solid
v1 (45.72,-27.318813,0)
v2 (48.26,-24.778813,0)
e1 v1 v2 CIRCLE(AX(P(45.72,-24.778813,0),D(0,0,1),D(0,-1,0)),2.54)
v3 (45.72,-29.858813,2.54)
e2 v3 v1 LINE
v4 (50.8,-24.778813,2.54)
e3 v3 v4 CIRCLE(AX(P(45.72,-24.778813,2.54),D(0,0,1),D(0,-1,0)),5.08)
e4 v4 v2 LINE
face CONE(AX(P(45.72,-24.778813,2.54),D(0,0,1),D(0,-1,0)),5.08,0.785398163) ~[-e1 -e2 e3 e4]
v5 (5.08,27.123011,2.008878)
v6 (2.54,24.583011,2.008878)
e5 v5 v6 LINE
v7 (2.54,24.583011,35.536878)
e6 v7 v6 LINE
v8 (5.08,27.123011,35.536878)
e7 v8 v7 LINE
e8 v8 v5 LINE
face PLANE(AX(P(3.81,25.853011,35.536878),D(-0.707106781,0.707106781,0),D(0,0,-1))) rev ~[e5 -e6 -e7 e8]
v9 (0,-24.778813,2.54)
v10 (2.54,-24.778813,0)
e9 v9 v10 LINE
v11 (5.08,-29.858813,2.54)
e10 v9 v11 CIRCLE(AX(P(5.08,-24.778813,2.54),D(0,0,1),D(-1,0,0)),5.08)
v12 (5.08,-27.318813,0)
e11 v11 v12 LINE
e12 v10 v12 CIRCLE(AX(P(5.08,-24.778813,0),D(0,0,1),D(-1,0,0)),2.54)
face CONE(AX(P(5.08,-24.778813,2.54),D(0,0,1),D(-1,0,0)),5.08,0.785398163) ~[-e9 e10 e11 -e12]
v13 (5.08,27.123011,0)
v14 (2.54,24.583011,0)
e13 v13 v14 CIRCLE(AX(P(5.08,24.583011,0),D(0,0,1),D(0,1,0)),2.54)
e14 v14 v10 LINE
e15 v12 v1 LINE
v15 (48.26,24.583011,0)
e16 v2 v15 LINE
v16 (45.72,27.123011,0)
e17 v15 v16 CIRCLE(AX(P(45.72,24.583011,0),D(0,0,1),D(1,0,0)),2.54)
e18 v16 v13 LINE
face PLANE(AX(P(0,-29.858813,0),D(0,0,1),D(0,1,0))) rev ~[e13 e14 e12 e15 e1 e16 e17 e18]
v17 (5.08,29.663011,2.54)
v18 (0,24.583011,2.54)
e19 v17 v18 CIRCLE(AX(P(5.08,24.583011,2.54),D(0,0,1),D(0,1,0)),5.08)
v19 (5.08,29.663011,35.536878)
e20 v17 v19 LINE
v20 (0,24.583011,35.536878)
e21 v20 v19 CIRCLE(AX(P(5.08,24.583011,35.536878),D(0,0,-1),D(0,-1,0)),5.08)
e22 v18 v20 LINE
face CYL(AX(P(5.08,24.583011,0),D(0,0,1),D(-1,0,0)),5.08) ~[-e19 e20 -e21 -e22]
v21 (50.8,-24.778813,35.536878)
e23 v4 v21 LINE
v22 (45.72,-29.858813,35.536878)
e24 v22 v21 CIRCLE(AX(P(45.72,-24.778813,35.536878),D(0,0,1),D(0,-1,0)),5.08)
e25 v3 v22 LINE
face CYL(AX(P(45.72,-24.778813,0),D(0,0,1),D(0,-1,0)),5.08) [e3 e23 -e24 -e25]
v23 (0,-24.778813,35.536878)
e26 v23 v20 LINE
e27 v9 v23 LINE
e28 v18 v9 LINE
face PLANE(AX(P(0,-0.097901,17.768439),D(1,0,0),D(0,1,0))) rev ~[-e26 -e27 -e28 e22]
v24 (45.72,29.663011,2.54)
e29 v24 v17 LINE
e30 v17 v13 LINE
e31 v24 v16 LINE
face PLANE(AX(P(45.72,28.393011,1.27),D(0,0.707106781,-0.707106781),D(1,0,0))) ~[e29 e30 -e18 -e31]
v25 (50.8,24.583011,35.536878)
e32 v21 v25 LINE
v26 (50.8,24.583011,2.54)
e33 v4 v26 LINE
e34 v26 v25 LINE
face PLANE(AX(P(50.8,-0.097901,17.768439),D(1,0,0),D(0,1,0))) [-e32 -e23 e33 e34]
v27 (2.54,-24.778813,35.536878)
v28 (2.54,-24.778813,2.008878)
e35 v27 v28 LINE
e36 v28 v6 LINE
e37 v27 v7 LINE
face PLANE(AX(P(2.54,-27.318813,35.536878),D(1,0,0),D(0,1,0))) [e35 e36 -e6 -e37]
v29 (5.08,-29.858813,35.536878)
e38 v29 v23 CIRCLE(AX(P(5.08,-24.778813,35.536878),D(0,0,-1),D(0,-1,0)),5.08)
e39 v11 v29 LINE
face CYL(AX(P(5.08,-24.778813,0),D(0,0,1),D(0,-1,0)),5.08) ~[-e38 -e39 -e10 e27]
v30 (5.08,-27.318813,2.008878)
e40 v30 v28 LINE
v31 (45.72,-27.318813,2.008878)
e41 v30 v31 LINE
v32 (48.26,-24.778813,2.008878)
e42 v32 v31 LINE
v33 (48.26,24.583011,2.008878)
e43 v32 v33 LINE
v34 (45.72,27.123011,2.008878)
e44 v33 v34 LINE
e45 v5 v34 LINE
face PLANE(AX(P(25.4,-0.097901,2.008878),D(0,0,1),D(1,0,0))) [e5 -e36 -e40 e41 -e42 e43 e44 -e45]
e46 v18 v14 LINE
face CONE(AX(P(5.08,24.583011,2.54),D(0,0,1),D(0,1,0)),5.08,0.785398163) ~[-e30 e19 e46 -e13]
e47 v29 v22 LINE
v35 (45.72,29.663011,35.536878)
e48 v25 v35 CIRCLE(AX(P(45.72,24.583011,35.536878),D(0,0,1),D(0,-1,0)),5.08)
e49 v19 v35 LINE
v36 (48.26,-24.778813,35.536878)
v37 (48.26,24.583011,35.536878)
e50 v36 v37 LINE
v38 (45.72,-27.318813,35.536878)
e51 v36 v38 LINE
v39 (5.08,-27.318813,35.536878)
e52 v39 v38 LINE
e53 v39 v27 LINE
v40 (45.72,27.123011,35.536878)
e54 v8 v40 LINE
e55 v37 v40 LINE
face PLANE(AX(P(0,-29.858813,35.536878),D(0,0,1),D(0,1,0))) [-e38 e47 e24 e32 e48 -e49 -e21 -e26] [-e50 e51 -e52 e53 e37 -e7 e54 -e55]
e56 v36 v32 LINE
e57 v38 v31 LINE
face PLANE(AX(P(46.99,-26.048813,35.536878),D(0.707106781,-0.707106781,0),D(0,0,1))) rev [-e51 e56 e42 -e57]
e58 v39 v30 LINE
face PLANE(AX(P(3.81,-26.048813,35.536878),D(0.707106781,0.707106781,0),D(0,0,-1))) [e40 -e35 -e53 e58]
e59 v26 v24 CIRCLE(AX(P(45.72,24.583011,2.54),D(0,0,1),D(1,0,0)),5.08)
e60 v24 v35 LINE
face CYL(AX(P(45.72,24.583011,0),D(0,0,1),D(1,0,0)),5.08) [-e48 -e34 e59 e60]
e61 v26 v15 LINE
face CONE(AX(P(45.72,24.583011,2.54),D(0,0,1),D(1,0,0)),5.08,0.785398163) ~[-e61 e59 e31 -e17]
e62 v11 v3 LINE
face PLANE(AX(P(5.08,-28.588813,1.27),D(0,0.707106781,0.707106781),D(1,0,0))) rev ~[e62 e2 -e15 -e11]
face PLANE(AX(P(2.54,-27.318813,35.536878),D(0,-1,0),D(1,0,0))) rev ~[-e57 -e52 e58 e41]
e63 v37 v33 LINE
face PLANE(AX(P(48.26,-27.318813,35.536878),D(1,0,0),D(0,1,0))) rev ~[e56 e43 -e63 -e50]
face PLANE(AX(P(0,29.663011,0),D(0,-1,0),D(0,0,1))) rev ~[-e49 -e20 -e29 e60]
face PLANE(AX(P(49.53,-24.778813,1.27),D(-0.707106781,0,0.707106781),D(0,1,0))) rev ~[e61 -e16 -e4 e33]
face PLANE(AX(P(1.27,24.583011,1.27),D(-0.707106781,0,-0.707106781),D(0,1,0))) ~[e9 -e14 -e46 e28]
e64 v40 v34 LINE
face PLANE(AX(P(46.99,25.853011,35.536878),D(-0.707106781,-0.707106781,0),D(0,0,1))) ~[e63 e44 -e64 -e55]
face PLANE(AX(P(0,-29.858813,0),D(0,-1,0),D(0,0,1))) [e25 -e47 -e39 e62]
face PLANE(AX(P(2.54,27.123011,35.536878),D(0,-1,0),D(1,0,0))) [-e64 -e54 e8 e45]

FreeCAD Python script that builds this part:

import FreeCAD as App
import Part
import Sketcher
Q = App.Units.Quantity


def edges_at(feature, points):
    """Names of the edges that pass closest to the given points."""
    edges = feature.Shape.Edges
    near = lambda p: min(range(len(edges)), key=lambda i: edges[i].distToShape(Part.Vertex(*p))[0])
    return sorted({f"Edge{near(p) + 1}" for p in points})


def add_polygon(sketch, points):
    """Adds a closed chain of lines whose ends are joined by coincident constraints."""
    first, n = sketch.GeometryCount, len(points)
    for a, b in zip(points, points[1:] + points[:1]):
        sketch.addGeometry(Part.LineSegment(App.Vector(*a, 0), App.Vector(*b, 0)), False)
    for i in range(n):
        sketch.addConstraint(Sketcher.Constraint("Coincident", first + i, 2, first + (i + 1) % n, 1))

doc = App.newDocument("Part")
params = doc.addObject("Spreadsheet::Sheet", "Params")
for row, (alias, value) in enumerate([
    ("pad1_length", "2 in"),
    ("sketch2_width", "1.8 in"),
    ("pocket1_length", "1.32 in"),
    ("fillet_radius", "0.2 in"),
    ("fillet2_radius", "0.2 in"),
    ("fillet3_radius", "0.2 in"),
    ("chamfer_size", "0.1 in"),
    ("chamfer2_size", "0.1 in"),
    ("chamfer3_size", "0.1 in"),
], start=1):
    params.set(f"A{row}", alias)
    params.set(f"B{row}", "=" + value)
    params.setAlias(f"B{row}", alias)

body = doc.addObject("PartDesign::Body", "Body")

# Sketch on YZ plane
sketch1 = doc.addObject("Sketcher::SketchObject", "Sketch")
body.addObject(sketch1)
sketch1.AttachmentSupport = (doc.YZ_Plane, [""])
sketch1.MapMode = "FlatFace"
add_polygon(sketch1, [(-30, 36), (-30, 0), (30, 0), (30, 36)])  # lines 0-3
sketch1.addConstraint(Sketcher.Constraint("Vertical", 0))
sketch1.addConstraint(Sketcher.Constraint("Horizontal", 1))
sketch1.addConstraint(Sketcher.Constraint("Vertical", 2))
sketch1.addConstraint(Sketcher.Constraint("Horizontal", 3))
sketch1.addConstraint(Sketcher.Constraint("PointOnObject", 0, 2, -1))
sketch1.addConstraint(Sketcher.Constraint("DistanceY", 0, 2, 0, 1, Q("35.536878 mm")))
sketch1.addConstraint(Sketcher.Constraint("DistanceX", 1, 1, 1, 2, Q("59.521824 mm")))
sketch1.addConstraint(Sketcher.Constraint("DistanceX", -1, 1, 1, 2, Q("29.663011 mm")))
pad1 = doc.addObject("PartDesign::Pad", "Pad")
body.addObject(pad1)
pad1.Profile = sketch1
pad1.setExpression("Length", "Params.pad1_length")

# Sketch on XY plane
sketch2 = doc.addObject("Sketcher::SketchObject", "Sketch001")
body.addObject(sketch2)
sketch2.AttachmentSupport = (doc.XY_Plane, [""])
sketch2.MapMode = "FlatFace"
sketch2.AttachmentOffset = App.Placement(App.Vector(0, 0, 35.536878), App.Rotation())
add_polygon(sketch2, [(3, 27), (3, -27), (48, -27), (48, 27)])  # lines 0-3
sketch2.addConstraint(Sketcher.Constraint("Vertical", 0))
sketch2.addConstraint(Sketcher.Constraint("Horizontal", 1))
sketch2.addConstraint(Sketcher.Constraint("Vertical", 2))
sketch2.addConstraint(Sketcher.Constraint("Horizontal", 3))
sketch2.addConstraint(Sketcher.Constraint("DistanceX", 1, 1, 1, 2, Q("1.8 in")))
sketch2.addConstraint(Sketcher.Constraint("DistanceX", -1, 1, 0, 2, Q("0.1 in")))
sketch2.addConstraint(Sketcher.Constraint("DistanceY", 0, 2, 0, 1, Q("54.441824 mm")))
sketch2.addConstraint(Sketcher.Constraint("DistanceY", -1, 1, 2, 2, Q("27.123011 mm")))
sketch2.setExpression("Constraints[8]", "Params.sketch2_width")
pocket1 = doc.addObject("PartDesign::Pocket", "Pocket")
body.addObject(pocket1)
pocket1.Profile = sketch2
pocket1.setExpression("Length", "Params.pocket1_length")
doc.recompute()

fillet = doc.addObject("PartDesign::Fillet", "Fillet")
body.addObject(fillet)
fillet.Base = (pocket1, edges_at(pocket1, [(0, 29.663, 17.768), (0, -29.859, 17.768)]))
fillet.setExpression("Radius", "Params.fillet_radius")
doc.recompute()

fillet2 = doc.addObject("PartDesign::Fillet", "Fillet001")
body.addObject(fillet2)
fillet2.Base = (fillet, edges_at(fillet, [(50.8, -29.859, 17.768)]))
fillet2.setExpression("Radius", "Params.fillet2_radius")
doc.recompute()

fillet3 = doc.addObject("PartDesign::Fillet", "Fillet002")
body.addObject(fillet3)
fillet3.Base = (fillet2, edges_at(fillet2, [(50.8, 29.663, 17.768)]))
fillet3.setExpression("Radius", "Params.fillet3_radius")
doc.recompute()

chamfer = doc.addObject("PartDesign::Chamfer", "Chamfer")
body.addObject(chamfer)
chamfer.Base = (fillet3, edges_at(fillet3, [(48.26, 27.123, 18.773), (2.54, 27.123, 18.773)]))
chamfer.setExpression("Size", "Params.chamfer_size")
doc.recompute()

chamfer2 = doc.addObject("PartDesign::Chamfer", "Chamfer001")
body.addObject(chamfer2)
chamfer2.Base = (chamfer, edges_at(chamfer, [(48.26, -27.319, 18.773), (2.54, -27.319, 18.773)]))
chamfer2.setExpression("Size", "Params.chamfer2_size")
doc.recompute()

chamfer3 = doc.addObject("PartDesign::Chamfer", "Chamfer002")
body.addObject(chamfer3)
chamfer3.Base = (chamfer2, edges_at(chamfer2, [
    (50.8, -0.098, 0),
    (49.312, 28.175, 0),
    (49.312, -28.371, 0),
    (25.4, 29.663, 0),
    (25.4, -29.859, 0),
    (1.488, 28.175, 0),
    (1.488, -28.371, 0),
    (0, -0.098, 0),
]))
chamfer3.setExpression("Size", "Params.chamfer3_size")

doc.recompute()
